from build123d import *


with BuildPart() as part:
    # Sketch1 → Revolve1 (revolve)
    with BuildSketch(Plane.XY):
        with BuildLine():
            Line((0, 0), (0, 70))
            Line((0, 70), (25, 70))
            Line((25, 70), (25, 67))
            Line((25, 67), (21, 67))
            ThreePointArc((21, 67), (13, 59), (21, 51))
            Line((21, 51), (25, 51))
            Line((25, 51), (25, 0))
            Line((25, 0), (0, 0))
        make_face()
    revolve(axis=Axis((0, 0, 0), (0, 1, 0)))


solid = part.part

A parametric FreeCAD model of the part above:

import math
import FreeCAD as App
import Part
import Sketcher

doc = App.newDocument("Part")
body = doc.addObject("PartDesign::Body", "Body")

# Sketch on XY plane
sketch1 = body.newObject("Sketcher::SketchObject", "Sketch")
sketch1.AttachmentSupport = (doc.getObject("XY_Plane"), [""])
sketch1.MapMode = "FlatFace"
sketch1.addGeometry([
    Part.LineSegment(App.Vector(0, 70, 0), App.Vector(0, 0, 0)),  # 0
    Part.LineSegment(App.Vector(0, 0, 0), App.Vector(25, 0, 0)),  # 1
    Part.LineSegment(App.Vector(25, 0, 0), App.Vector(25, 51, 0)),  # 2
    Part.LineSegment(App.Vector(25, 51, 0), App.Vector(21, 51, 0)),  # 3
    Part.ArcOfCircle(Part.Circle(App.Vector(21, 59, 0), App.Vector(0, 0, 1), 8), math.radians(90), math.radians(270)),  # 4
    Part.LineSegment(App.Vector(21, 67, 0), App.Vector(25, 67, 0)),  # 5
    Part.LineSegment(App.Vector(25, 67, 0), App.Vector(25, 70, 0)),  # 6
    Part.LineSegment(App.Vector(25, 70, 0), App.Vector(0, 70, 0)),  # 7
], False)
sketch1.addConstraint([
    Sketcher.Constraint("Coincident", 0, 2, 1, 1),
    Sketcher.Constraint("Coincident", 1, 2, 2, 1),
    Sketcher.Constraint("Coincident", 2, 2, 3, 1),
    Sketcher.Constraint("Tangent", 3, 2, 4, 2),
    Sketcher.Constraint("Tangent", 4, 1, 5, 1),
    Sketcher.Constraint("Coincident", 5, 2, 6, 1),
    Sketcher.Constraint("Coincident", 6, 2, 7, 1),
    Sketcher.Constraint("Coincident", 7, 2, 0, 1),
    Sketcher.Constraint("Vertical", 0),
    Sketcher.Constraint("Horizontal", 1),
    Sketcher.Constraint("Vertical", 2),
    Sketcher.Constraint("Horizontal", 3),
    Sketcher.Constraint("Horizontal", 5),
    Sketcher.Constraint("Vertical", 6),
    Sketcher.Constraint("Horizontal", 7),
    Sketcher.Constraint("Coincident", 0, 2, -1, 1),
    Sketcher.Constraint("Vertical", 2, 2, 5, 2),
    Sketcher.Constraint("Radius", 4, 8.0),
    Sketcher.Constraint("DistanceX", 1, 1, 1, 2, 25.0),
    Sketcher.Constraint("DistanceX", 3, 2, 3, 1, 4.0),
    Sketcher.Constraint("DistanceY", 0, 2, 0, 1, 70.0),
    Sketcher.Constraint("DistanceY", 2, 1, 2, 2, 51.0),
])
revolution = body.newObject("PartDesign::Revolution", "Revolution")
revolution.Profile = sketch1
revolution.ReferenceAxis = (sketch1, ["V_Axis"])
revolution.Angle = 360

doc.recompute()
